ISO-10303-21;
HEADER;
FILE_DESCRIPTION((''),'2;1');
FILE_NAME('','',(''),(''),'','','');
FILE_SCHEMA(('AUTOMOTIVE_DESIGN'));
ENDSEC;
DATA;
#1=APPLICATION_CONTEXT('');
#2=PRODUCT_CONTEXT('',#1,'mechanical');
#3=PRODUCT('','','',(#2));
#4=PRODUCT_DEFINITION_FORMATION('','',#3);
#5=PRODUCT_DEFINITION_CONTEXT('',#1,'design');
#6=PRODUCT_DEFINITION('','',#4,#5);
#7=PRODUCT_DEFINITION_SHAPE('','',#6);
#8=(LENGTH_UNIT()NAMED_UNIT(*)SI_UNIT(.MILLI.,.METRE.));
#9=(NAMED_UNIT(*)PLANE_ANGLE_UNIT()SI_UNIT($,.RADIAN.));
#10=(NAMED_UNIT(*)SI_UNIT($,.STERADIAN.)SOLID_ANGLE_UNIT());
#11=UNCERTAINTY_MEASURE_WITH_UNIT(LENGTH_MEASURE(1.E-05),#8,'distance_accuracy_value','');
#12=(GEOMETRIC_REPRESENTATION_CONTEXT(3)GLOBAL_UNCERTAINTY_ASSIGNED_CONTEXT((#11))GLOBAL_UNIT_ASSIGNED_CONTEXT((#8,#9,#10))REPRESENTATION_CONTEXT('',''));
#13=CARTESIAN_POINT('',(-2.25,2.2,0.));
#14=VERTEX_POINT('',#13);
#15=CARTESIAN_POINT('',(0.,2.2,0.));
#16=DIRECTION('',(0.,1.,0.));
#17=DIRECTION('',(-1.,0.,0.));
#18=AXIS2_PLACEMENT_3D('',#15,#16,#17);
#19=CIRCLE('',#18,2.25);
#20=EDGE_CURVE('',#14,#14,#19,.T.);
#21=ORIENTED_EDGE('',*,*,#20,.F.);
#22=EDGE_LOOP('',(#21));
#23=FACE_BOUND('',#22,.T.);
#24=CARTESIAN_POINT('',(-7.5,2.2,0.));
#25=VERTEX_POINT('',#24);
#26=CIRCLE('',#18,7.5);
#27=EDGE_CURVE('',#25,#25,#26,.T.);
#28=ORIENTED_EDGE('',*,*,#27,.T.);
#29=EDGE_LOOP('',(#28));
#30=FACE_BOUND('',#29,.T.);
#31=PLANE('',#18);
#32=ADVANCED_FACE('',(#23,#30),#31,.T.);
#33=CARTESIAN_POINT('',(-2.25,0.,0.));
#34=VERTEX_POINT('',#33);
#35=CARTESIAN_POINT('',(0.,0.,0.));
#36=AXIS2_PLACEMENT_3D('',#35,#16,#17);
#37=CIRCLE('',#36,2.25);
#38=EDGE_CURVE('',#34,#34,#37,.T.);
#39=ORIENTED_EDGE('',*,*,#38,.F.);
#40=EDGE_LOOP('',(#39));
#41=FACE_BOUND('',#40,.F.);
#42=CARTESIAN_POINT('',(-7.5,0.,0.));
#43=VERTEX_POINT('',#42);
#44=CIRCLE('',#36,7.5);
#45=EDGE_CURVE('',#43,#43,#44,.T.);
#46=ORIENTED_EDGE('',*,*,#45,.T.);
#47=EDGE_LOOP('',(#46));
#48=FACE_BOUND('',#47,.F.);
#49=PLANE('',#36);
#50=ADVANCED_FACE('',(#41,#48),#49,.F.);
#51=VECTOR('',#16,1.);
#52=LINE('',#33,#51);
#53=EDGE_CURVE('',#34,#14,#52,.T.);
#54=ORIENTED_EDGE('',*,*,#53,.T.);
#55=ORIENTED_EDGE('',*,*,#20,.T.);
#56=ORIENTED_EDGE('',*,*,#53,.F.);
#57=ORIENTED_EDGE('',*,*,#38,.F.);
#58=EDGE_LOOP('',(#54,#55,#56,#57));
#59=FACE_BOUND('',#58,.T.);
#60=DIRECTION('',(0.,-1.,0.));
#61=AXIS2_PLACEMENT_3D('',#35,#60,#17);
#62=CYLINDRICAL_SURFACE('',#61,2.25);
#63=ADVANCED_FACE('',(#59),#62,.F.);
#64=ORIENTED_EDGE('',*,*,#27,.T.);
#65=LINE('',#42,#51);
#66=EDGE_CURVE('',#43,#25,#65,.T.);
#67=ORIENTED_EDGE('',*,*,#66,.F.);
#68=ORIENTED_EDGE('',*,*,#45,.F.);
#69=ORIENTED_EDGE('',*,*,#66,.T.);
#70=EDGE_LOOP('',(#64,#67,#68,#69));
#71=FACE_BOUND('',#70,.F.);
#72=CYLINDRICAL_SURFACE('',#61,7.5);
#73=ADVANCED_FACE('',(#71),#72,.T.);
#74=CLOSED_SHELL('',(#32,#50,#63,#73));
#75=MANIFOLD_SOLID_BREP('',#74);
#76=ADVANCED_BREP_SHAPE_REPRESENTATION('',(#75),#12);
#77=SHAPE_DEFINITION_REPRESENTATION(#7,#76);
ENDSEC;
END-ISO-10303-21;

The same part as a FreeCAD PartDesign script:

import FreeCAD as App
import Part
import Sketcher
from FreeCAD import Vector
Q = App.Units.Quantity

doc = App.newDocument("Part")
body = doc.addObject("PartDesign::Body", "Body")

sketch1 = body.newObject("Sketcher::SketchObject", "Sketch")
sketch1.AttachmentSupport = (doc.getObject("XZ_Plane"), [""])
sketch1.MapMode = "FlatFace"
sketch1.addGeometry([
    Part.Circle(Vector(0, 0, 0), Vector(0, 0, 1), 7.5),
    Part.Circle(Vector(0, 0, 0), Vector(0, 0, 1), 2.2),
], False)
sketch1.addConstraint([
    Sketcher.Constraint("Coincident", 0, 3, -1, 1),
    Sketcher.Constraint("Coincident", 1, 3, -1, 1),
    Sketcher.Constraint("Diameter", 0, Q("15 mm")),
    Sketcher.Constraint("Diameter", 1, Q("4.5 mm")),
])
pad1 = body.newObject("PartDesign::Pad", "Pad")
pad1.Profile = sketch1
pad1.Length = 2.2
pad1.Reversed = True

doc.recompute()
